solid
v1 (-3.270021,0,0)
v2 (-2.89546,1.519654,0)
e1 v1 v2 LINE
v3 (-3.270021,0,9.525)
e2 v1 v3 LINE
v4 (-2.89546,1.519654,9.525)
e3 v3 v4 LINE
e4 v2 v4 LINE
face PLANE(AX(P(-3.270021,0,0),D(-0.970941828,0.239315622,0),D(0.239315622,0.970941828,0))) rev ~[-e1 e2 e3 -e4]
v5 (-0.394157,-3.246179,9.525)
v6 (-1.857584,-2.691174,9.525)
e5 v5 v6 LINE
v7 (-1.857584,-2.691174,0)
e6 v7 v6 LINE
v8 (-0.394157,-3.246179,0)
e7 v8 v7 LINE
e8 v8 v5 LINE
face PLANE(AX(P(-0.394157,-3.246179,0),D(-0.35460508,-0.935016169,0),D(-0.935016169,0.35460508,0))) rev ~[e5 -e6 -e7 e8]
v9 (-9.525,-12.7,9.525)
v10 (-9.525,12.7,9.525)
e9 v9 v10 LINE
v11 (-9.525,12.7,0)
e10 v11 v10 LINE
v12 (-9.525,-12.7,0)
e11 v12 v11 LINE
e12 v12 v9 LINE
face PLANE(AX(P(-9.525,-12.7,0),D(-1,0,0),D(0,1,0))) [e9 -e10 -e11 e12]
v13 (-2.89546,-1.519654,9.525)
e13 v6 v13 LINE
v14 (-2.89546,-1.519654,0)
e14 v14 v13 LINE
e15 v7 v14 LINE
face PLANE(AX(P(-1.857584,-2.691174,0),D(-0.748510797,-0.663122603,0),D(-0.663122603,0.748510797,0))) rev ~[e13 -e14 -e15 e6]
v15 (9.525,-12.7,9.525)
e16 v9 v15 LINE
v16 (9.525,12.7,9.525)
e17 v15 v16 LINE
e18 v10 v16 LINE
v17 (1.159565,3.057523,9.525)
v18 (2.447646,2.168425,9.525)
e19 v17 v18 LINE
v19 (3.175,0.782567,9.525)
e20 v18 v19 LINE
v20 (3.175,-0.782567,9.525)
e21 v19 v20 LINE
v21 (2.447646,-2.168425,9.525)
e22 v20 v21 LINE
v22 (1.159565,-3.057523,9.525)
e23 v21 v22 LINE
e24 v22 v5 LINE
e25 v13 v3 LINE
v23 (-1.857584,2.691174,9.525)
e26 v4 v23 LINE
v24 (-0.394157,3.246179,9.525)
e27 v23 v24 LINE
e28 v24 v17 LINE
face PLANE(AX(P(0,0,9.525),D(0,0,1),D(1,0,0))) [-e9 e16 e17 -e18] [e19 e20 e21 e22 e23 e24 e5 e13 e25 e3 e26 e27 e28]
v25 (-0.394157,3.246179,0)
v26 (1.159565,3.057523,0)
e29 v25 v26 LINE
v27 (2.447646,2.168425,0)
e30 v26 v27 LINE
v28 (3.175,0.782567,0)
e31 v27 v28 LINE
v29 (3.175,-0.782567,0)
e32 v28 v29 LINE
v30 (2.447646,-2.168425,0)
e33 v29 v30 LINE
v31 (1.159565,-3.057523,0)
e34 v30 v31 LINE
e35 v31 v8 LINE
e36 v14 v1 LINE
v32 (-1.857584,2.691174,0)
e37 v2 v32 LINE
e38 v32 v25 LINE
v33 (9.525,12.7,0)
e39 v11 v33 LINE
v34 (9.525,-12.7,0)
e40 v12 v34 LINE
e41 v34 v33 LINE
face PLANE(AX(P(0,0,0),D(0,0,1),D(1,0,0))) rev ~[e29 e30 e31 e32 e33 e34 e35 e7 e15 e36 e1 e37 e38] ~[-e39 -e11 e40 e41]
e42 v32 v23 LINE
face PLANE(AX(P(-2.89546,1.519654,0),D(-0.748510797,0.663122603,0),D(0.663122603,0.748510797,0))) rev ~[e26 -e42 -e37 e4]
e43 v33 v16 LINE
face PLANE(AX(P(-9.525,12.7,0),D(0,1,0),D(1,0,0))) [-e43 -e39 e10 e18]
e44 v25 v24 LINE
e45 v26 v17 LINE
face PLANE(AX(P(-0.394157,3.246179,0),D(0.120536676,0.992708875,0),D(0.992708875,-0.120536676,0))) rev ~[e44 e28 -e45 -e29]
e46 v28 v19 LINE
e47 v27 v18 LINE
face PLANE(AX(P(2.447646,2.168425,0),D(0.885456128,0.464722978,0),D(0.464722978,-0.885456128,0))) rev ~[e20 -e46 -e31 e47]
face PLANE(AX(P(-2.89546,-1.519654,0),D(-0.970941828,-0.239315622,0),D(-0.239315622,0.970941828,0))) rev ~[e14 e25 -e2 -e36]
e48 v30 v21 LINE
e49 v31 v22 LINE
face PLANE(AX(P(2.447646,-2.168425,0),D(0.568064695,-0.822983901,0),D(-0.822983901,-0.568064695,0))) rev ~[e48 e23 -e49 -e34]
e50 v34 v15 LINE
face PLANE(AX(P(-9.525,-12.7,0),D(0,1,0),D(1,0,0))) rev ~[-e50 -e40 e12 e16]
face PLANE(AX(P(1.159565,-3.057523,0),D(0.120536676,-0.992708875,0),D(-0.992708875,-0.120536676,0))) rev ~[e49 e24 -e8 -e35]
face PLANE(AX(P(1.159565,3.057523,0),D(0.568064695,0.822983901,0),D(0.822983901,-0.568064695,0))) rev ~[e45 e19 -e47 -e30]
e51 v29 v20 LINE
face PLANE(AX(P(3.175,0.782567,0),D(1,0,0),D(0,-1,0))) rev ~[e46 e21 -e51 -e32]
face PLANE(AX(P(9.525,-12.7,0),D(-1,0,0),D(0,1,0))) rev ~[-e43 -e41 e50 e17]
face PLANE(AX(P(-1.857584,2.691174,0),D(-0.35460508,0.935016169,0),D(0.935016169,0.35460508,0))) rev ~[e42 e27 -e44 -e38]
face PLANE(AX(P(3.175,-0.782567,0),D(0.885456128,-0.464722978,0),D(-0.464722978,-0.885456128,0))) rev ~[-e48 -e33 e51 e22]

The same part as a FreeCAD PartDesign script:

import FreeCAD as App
import Part
import Sketcher
Q = App.Units.Quantity


def add_polygon(sketch, points):
    """Adds a closed chain of lines whose ends are joined by coincident constraints."""
    first, n = sketch.GeometryCount, len(points)
    for a, b in zip(points, points[1:] + points[:1]):
        sketch.addGeometry(Part.LineSegment(App.Vector(*a, 0), App.Vector(*b, 0)), False)
    for i in range(n):
        sketch.addConstraint(Sketcher.Constraint("Coincident", first + i, 2, first + (i + 1) % n, 1))

doc = App.newDocument("Part")
body = doc.addObject("PartDesign::Body", "Body")

# Sketch on XY plane
sketch1 = body.newObject("Sketcher::SketchObject", "Sketch")
sketch1.AttachmentSupport = (doc.getObject("XY_Plane"), [""])
sketch1.MapMode = "FlatFace"
add_polygon(sketch1, [(-9.525, 12.7), (-9.525, -12.7), (9.525, -12.7), (9.525, 12.7)])  # lines 0-3
add_polygon(sketch1, [(1.159565, 3.057523), (2.447646, 2.168425), (3.175, 0.782567), (3.175, -0.782567), (2.447646, -2.168425), (1.159565, -3.057523), (-0.394157, -3.246179), (-1.857584, -2.691174), (-2.89546, -1.519654), (-3.270021, 0), (-2.89546, 1.519654), (-1.857584, 2.691174), (-0.394157, 3.246179)])  # lines 4-16
sketch1.addConstraint(Sketcher.Constraint("Vertical", 0))
sketch1.addConstraint(Sketcher.Constraint("Horizontal", 1))
sketch1.addConstraint(Sketcher.Constraint("Vertical", 2))
sketch1.addConstraint(Sketcher.Constraint("Horizontal", 3))
sketch1.addConstraint(Sketcher.Constraint("Vertical", 6))
sketch1.addConstraint(Sketcher.Constraint("Symmetric", 0, 2, 2, 2, -1, 1))
sketch1.addConstraint(Sketcher.Constraint("Symmetric", 4, 2, 7, 2, -1))
sketch1.addConstraint(Sketcher.Constraint("Symmetric", 11, 2, 13, 2, -1))
sketch1.addConstraint(Sketcher.Constraint("Symmetric", 10, 2, 14, 2, -1))
sketch1.addConstraint(Sketcher.Constraint("Symmetric", 9, 2, 15, 2, -1))
sketch1.addConstraint(Sketcher.Constraint("Symmetric", 8, 2, 16, 2, -1))
sketch1.addConstraint(Sketcher.Constraint("PointOnObject", 12, 2, -1))
sketch1.addConstraint(Sketcher.Constraint("Equal", 4, 5))
sketch1.addConstraint(Sketcher.Constraint("Equal", 5, 7))
sketch1.addConstraint(Sketcher.Constraint("Equal", 8, 9))
sketch1.addConstraint(Sketcher.Constraint("Equal", 9, 10))
sketch1.addConstraint(Sketcher.Constraint("Equal", 10, 11))
sketch1.addConstraint(Sketcher.Constraint("Equal", 11, 12))
sketch1.addConstraint(Sketcher.Constraint("DistanceY", 0, 2, 0, 1, Q("1 in")))
sketch1.addConstraint(Sketcher.Constraint("DistanceX", 1, 1, 1, 2, Q("0.75 in")))
sketch1.addConstraint(Sketcher.Constraint("DistanceX", 3, 2, 5, 2, Q("0.5 in")))
sketch1.addConstraint(Sketcher.Constraint("DistanceY", 8, 2, 7, 2, 0.889098))
sketch1.addConstraint(Sketcher.Constraint("DistanceY", 6, 2, 6, 1, 1.565134))
sketch1.addConstraint(Sketcher.Constraint("DistanceY", 9, 2, -1, 1, 3.246179))
sketch1.addConstraint(Sketcher.Constraint("DistanceX", 11, 2, -1, 1, 2.89546))
sketch1.addConstraint(Sketcher.Constraint("DistanceX", 12, 2, -1, 1, 3.270021))
sketch1.addConstraint(Sketcher.Constraint("DistanceY", 7, 2, 4, 2, 4.33685))
sketch1.addConstraint(Sketcher.Constraint("DistanceX", 8, 2, 7, 2, 1.288081))
pad1 = body.newObject("PartDesign::Pad", "Pad")
pad1.Profile = sketch1
pad1.Length = Q("0.375 in")

doc.recompute()
